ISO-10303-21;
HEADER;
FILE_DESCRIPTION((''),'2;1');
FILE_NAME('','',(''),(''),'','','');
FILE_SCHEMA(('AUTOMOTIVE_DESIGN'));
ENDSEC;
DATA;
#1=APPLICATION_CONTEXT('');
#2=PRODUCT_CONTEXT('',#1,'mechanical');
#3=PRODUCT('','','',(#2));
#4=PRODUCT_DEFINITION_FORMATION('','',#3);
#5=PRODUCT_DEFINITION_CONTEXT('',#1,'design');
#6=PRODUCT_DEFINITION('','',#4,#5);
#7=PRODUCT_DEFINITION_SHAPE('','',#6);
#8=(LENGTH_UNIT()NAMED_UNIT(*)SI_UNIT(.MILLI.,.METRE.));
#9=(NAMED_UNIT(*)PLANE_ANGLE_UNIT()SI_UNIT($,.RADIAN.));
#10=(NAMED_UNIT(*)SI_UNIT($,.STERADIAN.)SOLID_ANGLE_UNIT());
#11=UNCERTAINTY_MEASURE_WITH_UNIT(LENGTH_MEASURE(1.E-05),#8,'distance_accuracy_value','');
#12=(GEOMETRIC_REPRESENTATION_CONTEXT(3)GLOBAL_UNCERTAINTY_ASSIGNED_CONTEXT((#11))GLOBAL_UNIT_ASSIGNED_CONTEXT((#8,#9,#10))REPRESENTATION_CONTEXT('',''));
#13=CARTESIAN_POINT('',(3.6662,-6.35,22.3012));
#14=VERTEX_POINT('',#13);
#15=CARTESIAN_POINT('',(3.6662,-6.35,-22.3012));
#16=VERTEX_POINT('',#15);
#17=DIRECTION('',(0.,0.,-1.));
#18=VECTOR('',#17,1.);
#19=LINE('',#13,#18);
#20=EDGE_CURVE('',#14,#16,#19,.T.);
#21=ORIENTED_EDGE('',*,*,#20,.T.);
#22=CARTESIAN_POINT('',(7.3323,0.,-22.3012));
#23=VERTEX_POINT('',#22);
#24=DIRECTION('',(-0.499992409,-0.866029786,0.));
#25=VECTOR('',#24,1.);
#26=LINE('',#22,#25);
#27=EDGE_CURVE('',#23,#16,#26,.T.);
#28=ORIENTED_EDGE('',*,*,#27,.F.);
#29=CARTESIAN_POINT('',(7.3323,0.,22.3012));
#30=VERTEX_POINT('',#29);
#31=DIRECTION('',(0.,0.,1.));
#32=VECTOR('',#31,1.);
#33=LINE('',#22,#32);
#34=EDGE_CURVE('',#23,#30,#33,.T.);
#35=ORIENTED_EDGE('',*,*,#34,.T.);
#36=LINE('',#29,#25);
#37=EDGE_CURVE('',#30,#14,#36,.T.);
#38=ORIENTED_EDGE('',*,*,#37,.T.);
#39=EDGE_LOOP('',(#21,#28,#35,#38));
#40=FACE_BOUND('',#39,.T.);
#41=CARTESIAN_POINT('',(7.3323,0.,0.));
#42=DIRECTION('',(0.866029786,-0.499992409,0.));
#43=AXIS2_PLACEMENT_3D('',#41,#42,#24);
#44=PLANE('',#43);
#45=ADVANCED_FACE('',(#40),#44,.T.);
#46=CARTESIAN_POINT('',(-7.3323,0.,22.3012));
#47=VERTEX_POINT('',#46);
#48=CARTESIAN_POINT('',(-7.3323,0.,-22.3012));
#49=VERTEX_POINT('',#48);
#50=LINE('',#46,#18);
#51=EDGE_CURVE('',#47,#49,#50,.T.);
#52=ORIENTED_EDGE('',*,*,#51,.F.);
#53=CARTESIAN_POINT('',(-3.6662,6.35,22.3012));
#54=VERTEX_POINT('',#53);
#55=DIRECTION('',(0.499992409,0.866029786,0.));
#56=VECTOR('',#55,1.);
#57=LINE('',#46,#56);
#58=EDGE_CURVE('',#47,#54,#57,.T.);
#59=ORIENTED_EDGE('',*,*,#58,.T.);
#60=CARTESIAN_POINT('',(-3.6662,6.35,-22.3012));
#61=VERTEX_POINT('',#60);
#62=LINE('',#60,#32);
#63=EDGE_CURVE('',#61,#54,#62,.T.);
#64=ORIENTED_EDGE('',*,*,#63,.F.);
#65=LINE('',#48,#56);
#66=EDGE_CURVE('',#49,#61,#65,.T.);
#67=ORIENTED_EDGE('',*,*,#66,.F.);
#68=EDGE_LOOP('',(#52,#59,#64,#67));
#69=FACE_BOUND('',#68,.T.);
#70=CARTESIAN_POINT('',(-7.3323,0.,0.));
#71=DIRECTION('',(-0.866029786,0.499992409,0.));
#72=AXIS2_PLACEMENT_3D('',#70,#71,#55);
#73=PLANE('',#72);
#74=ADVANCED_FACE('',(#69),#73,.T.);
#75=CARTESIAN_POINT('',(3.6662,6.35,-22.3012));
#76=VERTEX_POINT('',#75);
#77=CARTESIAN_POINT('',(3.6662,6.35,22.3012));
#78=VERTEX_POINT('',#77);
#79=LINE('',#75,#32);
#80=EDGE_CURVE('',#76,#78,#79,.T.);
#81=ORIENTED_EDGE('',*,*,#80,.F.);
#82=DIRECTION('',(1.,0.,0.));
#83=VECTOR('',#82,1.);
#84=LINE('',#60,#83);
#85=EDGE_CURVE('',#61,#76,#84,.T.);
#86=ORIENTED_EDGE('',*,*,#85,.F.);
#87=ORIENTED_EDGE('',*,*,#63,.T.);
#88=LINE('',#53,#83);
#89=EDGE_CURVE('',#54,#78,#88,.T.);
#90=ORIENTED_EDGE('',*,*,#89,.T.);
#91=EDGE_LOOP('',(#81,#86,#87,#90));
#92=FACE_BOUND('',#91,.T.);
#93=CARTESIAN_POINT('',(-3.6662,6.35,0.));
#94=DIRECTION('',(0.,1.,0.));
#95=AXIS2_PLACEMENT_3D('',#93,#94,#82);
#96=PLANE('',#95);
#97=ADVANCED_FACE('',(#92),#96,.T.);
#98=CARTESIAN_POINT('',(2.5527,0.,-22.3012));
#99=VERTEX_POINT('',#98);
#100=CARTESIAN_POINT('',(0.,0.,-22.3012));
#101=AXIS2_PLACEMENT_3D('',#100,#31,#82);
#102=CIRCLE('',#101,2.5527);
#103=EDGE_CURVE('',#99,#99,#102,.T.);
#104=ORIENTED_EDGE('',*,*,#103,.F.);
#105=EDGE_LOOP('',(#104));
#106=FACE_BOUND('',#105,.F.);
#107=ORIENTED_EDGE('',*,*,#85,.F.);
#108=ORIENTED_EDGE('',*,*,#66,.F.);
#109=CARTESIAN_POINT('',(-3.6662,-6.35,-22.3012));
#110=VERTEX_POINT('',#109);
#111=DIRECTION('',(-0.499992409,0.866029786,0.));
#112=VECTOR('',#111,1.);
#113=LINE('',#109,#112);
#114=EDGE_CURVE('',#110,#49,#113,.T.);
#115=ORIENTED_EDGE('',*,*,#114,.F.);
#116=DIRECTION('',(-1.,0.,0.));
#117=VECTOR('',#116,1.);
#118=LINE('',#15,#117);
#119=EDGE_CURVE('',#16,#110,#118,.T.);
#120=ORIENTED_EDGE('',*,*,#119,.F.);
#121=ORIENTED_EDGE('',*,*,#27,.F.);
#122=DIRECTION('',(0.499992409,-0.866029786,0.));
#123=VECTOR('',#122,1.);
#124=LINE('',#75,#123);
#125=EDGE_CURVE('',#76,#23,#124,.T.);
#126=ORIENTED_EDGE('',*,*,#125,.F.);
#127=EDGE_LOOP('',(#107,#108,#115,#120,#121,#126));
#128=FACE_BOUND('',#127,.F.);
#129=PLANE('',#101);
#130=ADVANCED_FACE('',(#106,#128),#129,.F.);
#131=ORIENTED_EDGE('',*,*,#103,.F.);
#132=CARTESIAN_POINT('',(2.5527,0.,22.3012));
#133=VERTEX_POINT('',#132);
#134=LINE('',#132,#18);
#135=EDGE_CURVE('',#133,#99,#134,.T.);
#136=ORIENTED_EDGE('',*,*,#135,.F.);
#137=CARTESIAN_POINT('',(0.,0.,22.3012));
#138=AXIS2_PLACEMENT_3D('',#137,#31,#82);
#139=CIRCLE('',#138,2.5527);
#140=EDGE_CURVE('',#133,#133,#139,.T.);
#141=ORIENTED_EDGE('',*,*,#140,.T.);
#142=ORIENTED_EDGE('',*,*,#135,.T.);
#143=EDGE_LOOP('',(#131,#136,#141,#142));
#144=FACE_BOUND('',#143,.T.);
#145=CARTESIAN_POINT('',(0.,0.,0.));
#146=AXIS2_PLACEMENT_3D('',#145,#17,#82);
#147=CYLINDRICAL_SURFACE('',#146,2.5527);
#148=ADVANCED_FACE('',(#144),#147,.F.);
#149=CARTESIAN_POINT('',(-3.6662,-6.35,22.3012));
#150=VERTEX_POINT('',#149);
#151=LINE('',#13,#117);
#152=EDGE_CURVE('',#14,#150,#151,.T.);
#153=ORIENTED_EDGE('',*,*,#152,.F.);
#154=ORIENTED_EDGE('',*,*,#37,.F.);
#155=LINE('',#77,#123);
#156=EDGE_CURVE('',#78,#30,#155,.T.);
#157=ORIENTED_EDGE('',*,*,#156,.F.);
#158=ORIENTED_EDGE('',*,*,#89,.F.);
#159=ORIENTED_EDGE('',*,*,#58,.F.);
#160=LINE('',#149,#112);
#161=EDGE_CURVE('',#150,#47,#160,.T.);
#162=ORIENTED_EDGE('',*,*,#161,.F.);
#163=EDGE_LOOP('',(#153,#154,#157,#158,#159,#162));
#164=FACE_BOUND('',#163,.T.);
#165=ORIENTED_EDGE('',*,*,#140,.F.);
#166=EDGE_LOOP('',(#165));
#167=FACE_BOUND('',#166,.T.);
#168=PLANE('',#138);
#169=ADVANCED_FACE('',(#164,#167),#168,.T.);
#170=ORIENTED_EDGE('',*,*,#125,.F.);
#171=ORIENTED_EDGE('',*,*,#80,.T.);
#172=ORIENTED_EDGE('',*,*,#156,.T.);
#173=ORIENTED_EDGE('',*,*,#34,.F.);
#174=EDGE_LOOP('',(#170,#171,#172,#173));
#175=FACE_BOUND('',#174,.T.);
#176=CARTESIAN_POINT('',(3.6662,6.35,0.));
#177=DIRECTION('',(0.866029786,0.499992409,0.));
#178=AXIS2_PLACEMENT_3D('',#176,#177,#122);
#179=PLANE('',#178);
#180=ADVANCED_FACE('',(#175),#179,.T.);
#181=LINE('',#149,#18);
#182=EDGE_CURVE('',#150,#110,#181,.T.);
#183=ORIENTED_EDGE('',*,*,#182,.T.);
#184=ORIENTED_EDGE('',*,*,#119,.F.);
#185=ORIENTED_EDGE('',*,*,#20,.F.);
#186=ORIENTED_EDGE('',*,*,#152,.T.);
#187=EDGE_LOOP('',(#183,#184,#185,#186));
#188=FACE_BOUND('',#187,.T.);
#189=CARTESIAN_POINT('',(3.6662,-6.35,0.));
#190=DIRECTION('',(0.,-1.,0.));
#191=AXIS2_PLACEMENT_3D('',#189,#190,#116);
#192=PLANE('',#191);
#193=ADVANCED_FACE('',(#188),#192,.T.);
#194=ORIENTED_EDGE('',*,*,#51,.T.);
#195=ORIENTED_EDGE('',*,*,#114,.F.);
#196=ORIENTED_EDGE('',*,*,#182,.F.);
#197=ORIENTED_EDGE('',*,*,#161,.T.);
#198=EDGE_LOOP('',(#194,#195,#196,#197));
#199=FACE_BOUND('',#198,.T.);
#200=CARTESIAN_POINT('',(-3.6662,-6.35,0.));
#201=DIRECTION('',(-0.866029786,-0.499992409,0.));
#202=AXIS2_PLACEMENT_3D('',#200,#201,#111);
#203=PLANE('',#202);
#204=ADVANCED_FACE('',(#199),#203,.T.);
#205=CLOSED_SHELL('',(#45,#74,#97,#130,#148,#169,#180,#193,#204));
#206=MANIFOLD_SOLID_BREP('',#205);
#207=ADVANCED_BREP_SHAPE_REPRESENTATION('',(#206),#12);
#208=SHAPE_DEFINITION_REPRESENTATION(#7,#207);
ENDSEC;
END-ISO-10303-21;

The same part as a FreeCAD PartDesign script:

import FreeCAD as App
import Part
import Sketcher
from FreeCAD import Vector
Q = App.Units.Quantity

doc = App.newDocument("Part")
body = doc.addObject("PartDesign::Body", "Body")

# Sketch on XY plane
sketch1 = doc.addObject("Sketcher::SketchObject", "Sketch")
body.addObject(sketch1)
sketch1.AttachmentSupport = (doc.XY_Plane, [""])
sketch1.MapMode = "FlatFace"
sketch1.addGeometry([
    Part.LineSegment(Vector(3.7, -6.3, 0), Vector(7.3, 0, 0)),  # 0
    Part.LineSegment(Vector(7.3, 0, 0), Vector(3.7, 6.3, 0)),  # 1
    Part.LineSegment(Vector(3.7, 6.3, 0), Vector(-3.7, 6.3, 0)),  # 2
    Part.LineSegment(Vector(-3.7, 6.3, 0), Vector(-7.3, 0, 0)),  # 3
    Part.LineSegment(Vector(-7.3, 0, 0), Vector(-3.7, -6.3, 0)),  # 4
    Part.LineSegment(Vector(-3.7, -6.3, 0), Vector(3.7, -6.3, 0)),  # 5
    Part.Circle(Vector(0, 0, 0), Vector(0, 0, 1), 2.6),  # 6
], False)
sketch1.addConstraint([
    Sketcher.Constraint("Coincident", 0, 2, 1, 1),
    Sketcher.Constraint("Coincident", 1, 2, 2, 1),
    Sketcher.Constraint("Coincident", 2, 2, 3, 1),
    Sketcher.Constraint("Coincident", 3, 2, 4, 1),
    Sketcher.Constraint("Coincident", 4, 2, 5, 1),
    Sketcher.Constraint("Coincident", 5, 2, 0, 1),
    Sketcher.Constraint("Horizontal", 2),
    Sketcher.Constraint("Horizontal", 5),
    Sketcher.Constraint("Coincident", 6, 3, -1, 1),
    Sketcher.Constraint("Symmetric", 0, 2, 3, 2, -1, 1),
    Sketcher.Constraint("Symmetric", 1, 2, 4, 2, -1, 1),
    Sketcher.Constraint("PointOnObject", 0, 2, -1),
    Sketcher.Constraint("Parallel", 0, 3),
    Sketcher.Constraint("Vertical", 2, 2, 4, 2),
    Sketcher.Constraint("Diameter", 6, Q("0.201 in")),
    Sketcher.Constraint("DistanceY", 4, 2, 2, 2, Q("0.5 in")),
    Sketcher.Constraint("Angle", 0, Q("60.0005 deg")),
    Sketcher.Constraint("DistanceX", 2, 2, 0, 2, Q("0.433 in")),
])
pad1 = doc.addObject("PartDesign::Pad", "Pad")
body.addObject(pad1)
pad1.Profile = sketch1
pad1.Length = Q("1.756 in")
pad1.Midplane = True

doc.recompute()
